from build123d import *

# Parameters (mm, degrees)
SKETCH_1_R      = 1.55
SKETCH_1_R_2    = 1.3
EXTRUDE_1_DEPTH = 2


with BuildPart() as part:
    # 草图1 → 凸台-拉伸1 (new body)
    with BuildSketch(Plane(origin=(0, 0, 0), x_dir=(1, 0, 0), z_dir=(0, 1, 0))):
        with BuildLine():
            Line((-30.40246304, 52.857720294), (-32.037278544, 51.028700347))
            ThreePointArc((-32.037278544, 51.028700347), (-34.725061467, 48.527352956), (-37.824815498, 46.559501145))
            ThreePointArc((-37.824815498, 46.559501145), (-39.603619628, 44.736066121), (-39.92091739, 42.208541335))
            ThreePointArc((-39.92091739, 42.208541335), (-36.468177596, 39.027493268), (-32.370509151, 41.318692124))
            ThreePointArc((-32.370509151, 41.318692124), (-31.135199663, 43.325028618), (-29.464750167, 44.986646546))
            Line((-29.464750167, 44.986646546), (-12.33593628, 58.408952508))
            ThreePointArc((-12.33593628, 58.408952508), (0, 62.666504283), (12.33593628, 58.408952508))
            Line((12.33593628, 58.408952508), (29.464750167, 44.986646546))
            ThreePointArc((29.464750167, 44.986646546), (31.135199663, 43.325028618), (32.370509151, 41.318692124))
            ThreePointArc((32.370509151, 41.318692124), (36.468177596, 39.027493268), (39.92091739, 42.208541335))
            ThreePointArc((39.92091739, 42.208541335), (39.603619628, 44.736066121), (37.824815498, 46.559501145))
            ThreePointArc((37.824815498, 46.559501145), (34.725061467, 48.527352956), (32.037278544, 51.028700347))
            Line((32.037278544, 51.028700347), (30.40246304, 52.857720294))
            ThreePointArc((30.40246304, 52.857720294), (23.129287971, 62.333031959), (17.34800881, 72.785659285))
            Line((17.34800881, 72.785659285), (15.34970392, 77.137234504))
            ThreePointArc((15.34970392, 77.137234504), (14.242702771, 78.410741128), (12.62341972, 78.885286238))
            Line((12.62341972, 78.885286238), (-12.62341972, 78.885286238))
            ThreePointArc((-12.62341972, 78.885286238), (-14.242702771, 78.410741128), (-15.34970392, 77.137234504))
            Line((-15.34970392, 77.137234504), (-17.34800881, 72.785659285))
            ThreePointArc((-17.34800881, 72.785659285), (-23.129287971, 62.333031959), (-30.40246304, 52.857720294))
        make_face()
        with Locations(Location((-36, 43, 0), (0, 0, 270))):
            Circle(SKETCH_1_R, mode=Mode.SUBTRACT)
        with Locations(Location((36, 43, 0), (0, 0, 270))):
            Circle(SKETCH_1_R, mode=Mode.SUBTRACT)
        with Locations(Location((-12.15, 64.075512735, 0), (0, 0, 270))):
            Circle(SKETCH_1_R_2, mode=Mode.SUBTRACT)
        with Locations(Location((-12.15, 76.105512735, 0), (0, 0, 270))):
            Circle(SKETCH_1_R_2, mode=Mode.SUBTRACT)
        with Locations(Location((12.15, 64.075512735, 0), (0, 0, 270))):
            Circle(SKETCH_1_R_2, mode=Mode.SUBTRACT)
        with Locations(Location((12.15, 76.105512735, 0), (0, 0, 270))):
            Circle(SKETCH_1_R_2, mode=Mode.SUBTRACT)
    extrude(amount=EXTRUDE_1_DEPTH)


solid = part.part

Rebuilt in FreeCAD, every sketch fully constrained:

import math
import FreeCAD as App
import Part
import Sketcher

doc = App.newDocument("Part")
body = doc.addObject("PartDesign::Body", "Body")

sketch1 = body.newObject("Sketcher::SketchObject", "Sketch")
sketch1.AttachmentSupport = (doc.getObject("XZ_Plane"), [""])
sketch1.MapMode = "FlatFace"
sketch1.addGeometry([
    Part.LineSegment(App.Vector(-30.4, -52.9, 0), App.Vector(-32, -51, 0)),
    Part.ArcOfCircle(Part.Circle(App.Vector(-46.9, -64.4, 0), App.Vector(0, 0, 1), 20), math.radians(42), math.radians(63)),
    Part.ArcOfCircle(Part.Circle(App.Vector(-36, -43, 0), App.Vector(0, 0, 1), 4), math.radians(169), math.radians(243)),
    Part.ArcOfCircle(Part.Circle(App.Vector(-36, -43, 0), App.Vector(0, 0, 1), 4), math.radians(25), math.radians(169)),
    Part.ArcOfCircle(Part.Circle(App.Vector(-23.3, -37.1, 0), App.Vector(0, 0, 1), 10), math.radians(-155), math.radians(-128)),
    Part.LineSegment(App.Vector(-29.5, -45, 0), App.Vector(-12.3, -58.4, 0)),
    Part.ArcOfCircle(Part.Circle(App.Vector(0, -42.7, 0), App.Vector(0, 0, 1), 20), math.radians(-128), math.radians(-52)),
    Part.LineSegment(App.Vector(12.3, -58.4, 0), App.Vector(29.5, -45, 0)),
    Part.ArcOfCircle(Part.Circle(App.Vector(23.3, -37.1, 0), App.Vector(0, 0, 1), 10), math.radians(-52), math.radians(-25)),
    Part.ArcOfCircle(Part.Circle(App.Vector(36, -43, 0), App.Vector(0, 0, 1), 4), math.radians(11), math.radians(155)),
    Part.ArcOfCircle(Part.Circle(App.Vector(36, -43, 0), App.Vector(0, 0, 1), 4), math.radians(-63), math.radians(11)),
    Part.ArcOfCircle(Part.Circle(App.Vector(46.9, -64.4, 0), App.Vector(0, 0, 1), 20), math.radians(117), math.radians(138)),
    Part.LineSegment(App.Vector(32, -51, 0), App.Vector(30.4, -52.9, 0)),
    Part.ArcOfCircle(Part.Circle(App.Vector(90, -106.2, 0), App.Vector(0, 0, 1), 80), math.radians(138.21), math.radians(155.33)),
    Part.LineSegment(App.Vector(17.3, -72.8, 0), App.Vector(15.3, -77.1, 0)),
    Part.ArcOfCircle(Part.Circle(App.Vector(12.6, -75.9, 0), App.Vector(0, 0, 1), 3), math.radians(-90), math.radians(-25)),
    Part.LineSegment(App.Vector(12.6, -78.9, 0), App.Vector(-12.6, -78.9, 0)),
    Part.ArcOfCircle(Part.Circle(App.Vector(-12.6, -75.9, 0), App.Vector(0, 0, 1), 3), math.radians(-155), math.radians(-90)),
    Part.LineSegment(App.Vector(-15.3, -77.1, 0), App.Vector(-17.3, -72.8, 0)),
    Part.ArcOfCircle(Part.Circle(App.Vector(-90, -106.2, 0), App.Vector(0, 0, 1), 80), math.radians(24.67), math.radians(41.79)),
    Part.Circle(App.Vector(-36, -43, 0), App.Vector(0, 0, 1), 1.6),
    Part.Circle(App.Vector(36, -43, 0), App.Vector(0, 0, 1), 1.6),
    Part.Circle(App.Vector(-12.2, -64.1, 0), App.Vector(0, 0, 1), 1.3),
    Part.Circle(App.Vector(-12.2, -76.1, 0), App.Vector(0, 0, 1), 1.3),
    Part.Circle(App.Vector(12.2, -64.1, 0), App.Vector(0, 0, 1), 1.3),
    Part.Circle(App.Vector(12.2, -76.1, 0), App.Vector(0, 0, 1), 1.3),
], False)
sketch1.addConstraint([
    Sketcher.Constraint("Tangent", 0, 2, 1, 1),
    Sketcher.Constraint("Tangent", 1, 2, 2, 2),
    Sketcher.Constraint("Tangent", 2, 1, 3, 2),
    Sketcher.Constraint("Tangent", 3, 1, 4, 1),
    Sketcher.Constraint("Tangent", 4, 2, 5, 1),
    Sketcher.Constraint("Tangent", 5, 2, 6, 1),
    Sketcher.Constraint("Tangent", 6, 2, 7, 1),
    Sketcher.Constraint("Tangent", 7, 2, 8, 1),
    Sketcher.Constraint("Tangent", 8, 2, 9, 2),
    Sketcher.Constraint("Tangent", 9, 1, 10, 2),
    Sketcher.Constraint("Tangent", 10, 1, 11, 1),
    Sketcher.Constraint("Tangent", 11, 2, 12, 1),
    Sketcher.Constraint("Tangent", 12, 2, 13, 1),
    Sketcher.Constraint("Tangent", 13, 2, 14, 1),
    Sketcher.Constraint("Tangent", 14, 2, 15, 2),
    Sketcher.Constraint("Tangent", 15, 1, 16, 1),
    Sketcher.Constraint("Tangent", 16, 2, 17, 2),
    Sketcher.Constraint("Tangent", 17, 1, 18, 1),
    Sketcher.Constraint("Tangent", 18, 2, 19, 1),
    Sketcher.Constraint("Tangent", 19, 2, 0, 1),
    Sketcher.Constraint("Horizontal", 16),
    Sketcher.Constraint("Coincident", 20, 3, 2, 3),
    Sketcher.Constraint("Coincident", 21, 3, 9, 3),
    Sketcher.Constraint("Equal", 2, 3),
    Sketcher.Constraint("Equal", 1, 6),
    Sketcher.Constraint("Equal", 4, 8),
    Sketcher.Constraint("Equal", 3, 9),
    Sketcher.Constraint("Equal", 9, 10),
    Sketcher.Constraint("Equal", 6, 11),
    Sketcher.Constraint("Equal", 15, 17),
    Sketcher.Constraint("Equal", 13, 19),
    Sketcher.Constraint("Equal", 20, 21),
    Sketcher.Constraint("Equal", 22, 23),
    Sketcher.Constraint("Equal", 23, 24),
    Sketcher.Constraint("Equal", 24, 25),
    Sketcher.Constraint("Symmetric", 4, 3, 8, 3, -2),
    Sketcher.Constraint("Symmetric", 1, 3, 11, 3, -2),
    Sketcher.Constraint("Symmetric", 13, 3, 19, 3, -2),
    Sketcher.Constraint("Symmetric", 22, 3, 24, 3, -2),
    Sketcher.Constraint("Symmetric", 23, 3, 25, 3, -2),
    Sketcher.Constraint("PointOnObject", 6, 3, -2),
    Sketcher.Constraint("Horizontal", 2, 1, 9, 1),
    Sketcher.Constraint("Horizontal", 14, 2, 17, 1),
    Sketcher.Constraint("Vertical", 22, 3, 23, 3),
    Sketcher.Constraint("Radius", 1, 20.0),
    Sketcher.Constraint("Radius", 2, 4.0),
    Sketcher.Constraint("Radius", 4, 10.0),
    Sketcher.Constraint("Radius", 13, 80.0),
    Sketcher.Constraint("Radius", 15, 3.0),
    Sketcher.Constraint("Diameter", 20, 3.1),
    Sketcher.Constraint("Diameter", 22, 2.6),
    Sketcher.Constraint("DistanceX", 2, 3, -1, 1, 36.0),
    Sketcher.Constraint("DistanceY", 2, 3, -1, 1, 43.0),
    Sketcher.Constraint("DistanceX", 22, 3, 24, 3, 24.3),
    Sketcher.Constraint("DistanceY", 23, 3, 22, 3, 12.03),
    Sketcher.Constraint("DistanceX", 16, 2, 16, 1, 25.246839),
    Sketcher.Constraint("DistanceY", 0, 2, -1, 1, 51.0287),
    Sketcher.Constraint("DistanceY", 10, 1, -1, 1, 46.559501),
    Sketcher.Constraint("DistanceX", 19, 3, 17, 3, 77.425501),
    Sketcher.Constraint("DistanceX", 2, 1, 1, 2, 2.096102),
    Sketcher.Constraint("Distance", 5, 21.761309),
    Sketcher.Constraint("Distance", 14, 4.788468),
    Sketcher.Constraint("DistanceX", 3, 1, -1, 1, 32.370509),
    Sketcher.Constraint("DistanceY", 22, 3, 6, 3, 21.409008),
])
pad1 = body.newObject("PartDesign::Pad", "Pad")
pad1.Profile = sketch1
pad1.Length = 2
pad1.Reversed = True

doc.recompute()
